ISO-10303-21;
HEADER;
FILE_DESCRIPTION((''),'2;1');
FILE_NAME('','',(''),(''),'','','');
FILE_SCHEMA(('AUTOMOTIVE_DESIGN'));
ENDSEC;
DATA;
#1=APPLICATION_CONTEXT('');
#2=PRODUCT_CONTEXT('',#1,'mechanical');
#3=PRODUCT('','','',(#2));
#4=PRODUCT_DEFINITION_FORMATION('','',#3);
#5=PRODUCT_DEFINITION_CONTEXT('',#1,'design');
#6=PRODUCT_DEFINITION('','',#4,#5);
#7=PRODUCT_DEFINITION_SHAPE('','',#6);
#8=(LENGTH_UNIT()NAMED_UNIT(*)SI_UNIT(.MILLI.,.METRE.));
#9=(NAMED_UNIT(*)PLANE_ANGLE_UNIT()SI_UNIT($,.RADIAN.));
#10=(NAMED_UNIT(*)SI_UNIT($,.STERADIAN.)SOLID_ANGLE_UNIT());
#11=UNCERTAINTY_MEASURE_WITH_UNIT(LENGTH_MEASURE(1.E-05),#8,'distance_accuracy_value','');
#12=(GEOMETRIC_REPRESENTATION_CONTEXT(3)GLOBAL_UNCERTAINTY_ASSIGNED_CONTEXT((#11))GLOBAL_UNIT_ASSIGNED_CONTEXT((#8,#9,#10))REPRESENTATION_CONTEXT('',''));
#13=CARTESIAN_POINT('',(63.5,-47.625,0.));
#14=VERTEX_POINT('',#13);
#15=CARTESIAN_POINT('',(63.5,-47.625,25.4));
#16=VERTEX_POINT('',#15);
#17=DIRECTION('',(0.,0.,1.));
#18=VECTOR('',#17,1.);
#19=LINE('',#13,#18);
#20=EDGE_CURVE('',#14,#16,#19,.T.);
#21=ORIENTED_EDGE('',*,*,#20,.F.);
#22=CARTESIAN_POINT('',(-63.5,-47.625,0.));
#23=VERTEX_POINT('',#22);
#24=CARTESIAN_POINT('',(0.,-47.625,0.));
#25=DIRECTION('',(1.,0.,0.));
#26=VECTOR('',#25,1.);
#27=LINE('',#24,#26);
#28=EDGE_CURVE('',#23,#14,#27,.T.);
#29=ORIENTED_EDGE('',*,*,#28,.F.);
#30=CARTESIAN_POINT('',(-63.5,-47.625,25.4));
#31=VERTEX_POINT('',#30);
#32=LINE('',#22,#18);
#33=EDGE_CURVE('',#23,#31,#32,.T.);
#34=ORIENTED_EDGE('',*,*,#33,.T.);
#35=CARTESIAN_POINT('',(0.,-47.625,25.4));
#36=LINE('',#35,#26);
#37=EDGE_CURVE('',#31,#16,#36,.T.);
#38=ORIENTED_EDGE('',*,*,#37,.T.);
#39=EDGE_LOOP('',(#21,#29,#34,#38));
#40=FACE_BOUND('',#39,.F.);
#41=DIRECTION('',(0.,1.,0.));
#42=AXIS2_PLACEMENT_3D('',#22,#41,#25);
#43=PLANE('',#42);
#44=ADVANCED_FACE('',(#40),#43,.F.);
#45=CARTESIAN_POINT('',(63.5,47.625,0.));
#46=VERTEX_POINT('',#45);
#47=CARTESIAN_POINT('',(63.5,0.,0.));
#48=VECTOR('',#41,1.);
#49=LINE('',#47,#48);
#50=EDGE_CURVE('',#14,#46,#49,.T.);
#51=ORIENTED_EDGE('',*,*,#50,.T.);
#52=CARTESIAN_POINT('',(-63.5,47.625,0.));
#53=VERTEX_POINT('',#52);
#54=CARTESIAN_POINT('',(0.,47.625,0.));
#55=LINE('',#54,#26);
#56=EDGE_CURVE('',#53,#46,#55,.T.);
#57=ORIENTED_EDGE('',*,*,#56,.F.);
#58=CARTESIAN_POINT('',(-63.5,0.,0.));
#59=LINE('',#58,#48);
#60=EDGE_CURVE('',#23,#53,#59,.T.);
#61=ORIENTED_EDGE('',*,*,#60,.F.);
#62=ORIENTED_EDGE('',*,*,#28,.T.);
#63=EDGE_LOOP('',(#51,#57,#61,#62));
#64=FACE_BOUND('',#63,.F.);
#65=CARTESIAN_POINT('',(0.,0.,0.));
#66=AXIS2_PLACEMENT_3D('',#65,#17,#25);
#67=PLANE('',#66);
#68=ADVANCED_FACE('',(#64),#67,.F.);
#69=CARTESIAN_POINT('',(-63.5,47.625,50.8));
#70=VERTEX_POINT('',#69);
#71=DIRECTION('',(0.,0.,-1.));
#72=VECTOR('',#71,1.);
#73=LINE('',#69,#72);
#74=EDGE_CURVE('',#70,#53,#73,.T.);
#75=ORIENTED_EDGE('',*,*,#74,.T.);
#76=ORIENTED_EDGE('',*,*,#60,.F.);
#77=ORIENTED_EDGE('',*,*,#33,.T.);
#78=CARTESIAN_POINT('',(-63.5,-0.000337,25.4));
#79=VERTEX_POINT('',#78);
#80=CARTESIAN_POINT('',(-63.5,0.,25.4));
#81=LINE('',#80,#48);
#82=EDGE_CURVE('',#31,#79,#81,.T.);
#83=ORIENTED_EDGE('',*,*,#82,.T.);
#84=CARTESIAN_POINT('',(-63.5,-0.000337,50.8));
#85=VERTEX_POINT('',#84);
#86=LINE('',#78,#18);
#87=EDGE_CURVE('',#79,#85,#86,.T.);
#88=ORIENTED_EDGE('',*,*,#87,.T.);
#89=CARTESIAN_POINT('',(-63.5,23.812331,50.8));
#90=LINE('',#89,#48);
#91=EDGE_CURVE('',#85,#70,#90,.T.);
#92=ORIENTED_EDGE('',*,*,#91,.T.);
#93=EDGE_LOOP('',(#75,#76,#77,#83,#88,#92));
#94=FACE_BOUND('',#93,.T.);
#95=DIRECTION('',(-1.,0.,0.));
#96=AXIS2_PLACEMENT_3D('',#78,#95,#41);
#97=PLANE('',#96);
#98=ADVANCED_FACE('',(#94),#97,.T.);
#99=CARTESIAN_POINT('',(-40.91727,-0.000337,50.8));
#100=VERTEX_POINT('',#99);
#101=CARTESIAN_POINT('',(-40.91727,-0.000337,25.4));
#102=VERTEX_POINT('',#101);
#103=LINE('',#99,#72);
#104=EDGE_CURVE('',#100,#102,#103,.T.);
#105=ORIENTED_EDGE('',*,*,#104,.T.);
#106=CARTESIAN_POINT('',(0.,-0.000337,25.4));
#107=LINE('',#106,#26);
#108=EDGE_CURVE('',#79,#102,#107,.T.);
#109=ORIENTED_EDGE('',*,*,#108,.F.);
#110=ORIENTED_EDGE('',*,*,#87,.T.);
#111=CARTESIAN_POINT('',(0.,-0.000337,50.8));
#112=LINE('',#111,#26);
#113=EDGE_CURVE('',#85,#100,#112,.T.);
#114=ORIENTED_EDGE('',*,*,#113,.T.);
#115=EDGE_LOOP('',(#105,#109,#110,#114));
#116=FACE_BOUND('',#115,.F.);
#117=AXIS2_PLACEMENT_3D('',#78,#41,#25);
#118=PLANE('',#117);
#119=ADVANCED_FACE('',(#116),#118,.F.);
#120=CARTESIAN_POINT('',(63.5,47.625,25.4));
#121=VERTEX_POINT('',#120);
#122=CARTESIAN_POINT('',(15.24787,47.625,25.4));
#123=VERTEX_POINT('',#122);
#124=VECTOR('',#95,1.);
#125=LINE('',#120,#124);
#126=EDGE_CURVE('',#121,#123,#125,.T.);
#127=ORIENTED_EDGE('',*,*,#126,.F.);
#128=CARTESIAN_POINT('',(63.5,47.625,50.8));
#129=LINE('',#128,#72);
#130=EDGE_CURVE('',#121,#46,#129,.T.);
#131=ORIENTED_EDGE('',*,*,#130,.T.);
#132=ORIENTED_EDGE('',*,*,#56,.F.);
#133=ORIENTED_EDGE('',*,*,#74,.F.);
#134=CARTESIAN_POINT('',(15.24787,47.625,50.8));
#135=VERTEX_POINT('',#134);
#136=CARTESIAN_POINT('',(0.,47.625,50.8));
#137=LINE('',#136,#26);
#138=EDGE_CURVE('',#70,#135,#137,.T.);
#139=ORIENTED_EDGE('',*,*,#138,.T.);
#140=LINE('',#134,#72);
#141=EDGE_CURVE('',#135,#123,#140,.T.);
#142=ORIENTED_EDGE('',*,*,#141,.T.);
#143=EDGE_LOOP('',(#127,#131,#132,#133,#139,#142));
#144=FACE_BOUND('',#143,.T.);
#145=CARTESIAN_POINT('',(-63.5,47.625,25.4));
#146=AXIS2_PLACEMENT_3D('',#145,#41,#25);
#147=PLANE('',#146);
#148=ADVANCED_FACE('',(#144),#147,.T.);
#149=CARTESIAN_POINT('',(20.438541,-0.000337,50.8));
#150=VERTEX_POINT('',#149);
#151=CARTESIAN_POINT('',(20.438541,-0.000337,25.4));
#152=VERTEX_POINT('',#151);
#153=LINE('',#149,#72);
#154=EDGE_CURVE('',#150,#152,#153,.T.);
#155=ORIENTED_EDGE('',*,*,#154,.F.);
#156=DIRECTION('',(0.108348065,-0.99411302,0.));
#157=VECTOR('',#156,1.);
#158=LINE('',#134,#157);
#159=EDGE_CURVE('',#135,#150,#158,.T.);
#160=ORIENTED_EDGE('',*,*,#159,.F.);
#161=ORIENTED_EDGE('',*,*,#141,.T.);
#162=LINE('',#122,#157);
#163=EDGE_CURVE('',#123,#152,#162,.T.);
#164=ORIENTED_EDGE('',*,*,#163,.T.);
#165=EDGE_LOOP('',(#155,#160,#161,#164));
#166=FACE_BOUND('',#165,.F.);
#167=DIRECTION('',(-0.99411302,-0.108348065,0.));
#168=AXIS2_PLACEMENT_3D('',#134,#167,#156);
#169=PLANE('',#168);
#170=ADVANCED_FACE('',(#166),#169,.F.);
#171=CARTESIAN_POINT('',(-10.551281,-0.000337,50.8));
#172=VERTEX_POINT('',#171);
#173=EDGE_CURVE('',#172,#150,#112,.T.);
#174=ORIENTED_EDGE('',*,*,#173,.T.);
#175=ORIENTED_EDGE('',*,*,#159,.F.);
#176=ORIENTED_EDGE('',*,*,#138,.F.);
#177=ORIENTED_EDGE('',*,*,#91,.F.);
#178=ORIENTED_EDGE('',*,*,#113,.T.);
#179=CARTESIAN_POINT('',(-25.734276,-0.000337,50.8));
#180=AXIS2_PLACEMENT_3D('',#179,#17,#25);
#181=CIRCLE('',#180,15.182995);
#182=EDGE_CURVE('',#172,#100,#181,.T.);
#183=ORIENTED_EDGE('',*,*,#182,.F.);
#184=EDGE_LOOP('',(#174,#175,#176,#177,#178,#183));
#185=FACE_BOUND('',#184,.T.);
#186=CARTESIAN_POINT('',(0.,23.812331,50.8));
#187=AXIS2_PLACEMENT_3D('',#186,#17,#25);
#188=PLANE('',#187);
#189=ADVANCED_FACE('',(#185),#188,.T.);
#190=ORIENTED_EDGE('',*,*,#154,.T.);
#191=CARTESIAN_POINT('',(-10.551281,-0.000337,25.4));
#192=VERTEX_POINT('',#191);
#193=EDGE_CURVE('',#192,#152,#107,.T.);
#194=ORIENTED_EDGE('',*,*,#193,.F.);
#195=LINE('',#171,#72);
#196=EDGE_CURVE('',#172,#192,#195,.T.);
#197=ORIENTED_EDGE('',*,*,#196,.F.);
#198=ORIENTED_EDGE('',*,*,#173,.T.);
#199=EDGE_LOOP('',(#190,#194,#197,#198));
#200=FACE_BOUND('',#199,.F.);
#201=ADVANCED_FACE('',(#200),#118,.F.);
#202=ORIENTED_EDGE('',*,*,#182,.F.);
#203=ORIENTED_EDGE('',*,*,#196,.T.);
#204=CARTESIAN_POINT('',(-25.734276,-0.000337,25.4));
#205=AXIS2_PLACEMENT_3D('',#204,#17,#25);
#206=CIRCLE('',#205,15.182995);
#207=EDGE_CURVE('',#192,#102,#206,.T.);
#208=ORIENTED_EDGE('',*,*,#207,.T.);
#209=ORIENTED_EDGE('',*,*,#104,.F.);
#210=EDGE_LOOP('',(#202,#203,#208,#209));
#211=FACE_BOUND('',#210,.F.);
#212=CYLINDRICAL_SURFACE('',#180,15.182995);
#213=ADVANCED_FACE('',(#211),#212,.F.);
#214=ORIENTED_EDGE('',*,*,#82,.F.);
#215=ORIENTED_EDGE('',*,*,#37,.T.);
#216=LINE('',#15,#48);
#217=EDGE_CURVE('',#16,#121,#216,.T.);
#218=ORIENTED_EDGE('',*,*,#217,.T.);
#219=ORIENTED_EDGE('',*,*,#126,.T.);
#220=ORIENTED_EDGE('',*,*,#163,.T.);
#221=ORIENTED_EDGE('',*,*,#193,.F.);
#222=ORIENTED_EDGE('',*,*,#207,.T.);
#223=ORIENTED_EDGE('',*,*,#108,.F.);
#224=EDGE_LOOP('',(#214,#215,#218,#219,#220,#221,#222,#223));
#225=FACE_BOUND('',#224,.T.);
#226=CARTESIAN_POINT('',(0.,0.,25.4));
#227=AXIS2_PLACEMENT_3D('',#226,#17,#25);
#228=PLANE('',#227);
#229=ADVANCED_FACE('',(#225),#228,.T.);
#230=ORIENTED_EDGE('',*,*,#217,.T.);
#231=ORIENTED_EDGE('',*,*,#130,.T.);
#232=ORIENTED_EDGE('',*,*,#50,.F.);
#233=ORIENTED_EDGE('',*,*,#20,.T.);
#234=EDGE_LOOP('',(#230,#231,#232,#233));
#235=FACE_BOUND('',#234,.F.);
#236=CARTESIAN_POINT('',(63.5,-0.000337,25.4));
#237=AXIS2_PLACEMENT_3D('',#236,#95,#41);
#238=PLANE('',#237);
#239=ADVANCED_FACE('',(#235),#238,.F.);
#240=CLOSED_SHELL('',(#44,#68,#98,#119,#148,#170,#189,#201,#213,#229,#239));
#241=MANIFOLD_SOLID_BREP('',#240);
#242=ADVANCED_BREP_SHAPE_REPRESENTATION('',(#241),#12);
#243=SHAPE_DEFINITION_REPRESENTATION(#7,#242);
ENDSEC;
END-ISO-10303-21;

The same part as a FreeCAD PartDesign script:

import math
import FreeCAD as App
import Part
import Sketcher
Q = App.Units.Quantity


def add_polygon(sketch, points):
    """Adds a closed chain of lines whose ends are joined by coincident constraints."""
    first, n = sketch.GeometryCount, len(points)
    for a, b in zip(points, points[1:] + points[:1]):
        sketch.addGeometry(Part.LineSegment(App.Vector(*a, 0), App.Vector(*b, 0)), False)
    for i in range(n):
        sketch.addConstraint(Sketcher.Constraint("Coincident", first + i, 2, first + (i + 1) % n, 1))

doc = App.newDocument("Part")
params = doc.addObject("Spreadsheet::Sheet", "Params")
for row, (alias, value) in enumerate([
    ("sketch1_width", "5 in"),
    ("sketch1_height", "3.75 in"),
    ("pad1_length", "1 in"),
    ("sketch2_width", "5 in"),
    ("pad2_length", "1 in"),
    ("pocket1_length", "1 in"),
], start=1):
    params.set(f"A{row}", alias)
    params.set(f"B{row}", "=" + value)
    params.setAlias(f"B{row}", alias)

body = doc.addObject("PartDesign::Body", "Body")

# Sketch on XY plane
sketch1 = body.newObject("Sketcher::SketchObject", "Sketch")
sketch1.AttachmentSupport = (doc.getObject("XY_Plane"), [""])
sketch1.MapMode = "FlatFace"
add_polygon(sketch1, [(-64, 48), (-64, -48), (64, -48), (64, 48)])  # lines 0-3
sketch1.addConstraint(Sketcher.Constraint("Vertical", 0))
sketch1.addConstraint(Sketcher.Constraint("Horizontal", 1))
sketch1.addConstraint(Sketcher.Constraint("Vertical", 2))
sketch1.addConstraint(Sketcher.Constraint("Horizontal", 3))
sketch1.addConstraint(Sketcher.Constraint("Symmetric", 0, 2, 2, 2, -1, 1))
sketch1.addConstraint(Sketcher.Constraint("DistanceX", 1, 1, 1, 2, Q("5 in")))
sketch1.addConstraint(Sketcher.Constraint("DistanceY", 0, 2, 0, 1, Q("3.75 in")))
sketch1.setExpression("Constraints[9]", "Params.sketch1_width")
sketch1.setExpression("Constraints[10]", "Params.sketch1_height")
pad1 = body.newObject("PartDesign::Pad", "Pad")
pad1.Profile = sketch1
pad1.setExpression("Length", "Params.pad1_length")

# Sketch on XY plane
sketch2 = body.newObject("Sketcher::SketchObject", "Sketch001")
sketch2.AttachmentSupport = (doc.getObject("XY_Plane"), [""])
sketch2.MapMode = "FlatFace"
sketch2.AttachmentOffset = App.Placement(App.Vector(0, 0, 1 * 25.4), App.Rotation())
add_polygon(sketch2, [(-64, 48), (-64, 0), (64, 0), (64, 48)])  # lines 0-3
sketch2.addConstraint(Sketcher.Constraint("Vertical", 0))
sketch2.addConstraint(Sketcher.Constraint("Horizontal", 1))
sketch2.addConstraint(Sketcher.Constraint("Vertical", 2))
sketch2.addConstraint(Sketcher.Constraint("Horizontal", 3))
sketch2.addConstraint(Sketcher.Constraint("DistanceX", 1, 1, 1, 2, Q("5 in")))
sketch2.addConstraint(Sketcher.Constraint("DistanceX", 0, 2, -1, 1, Q("2.5 in")))
sketch2.addConstraint(Sketcher.Constraint("DistanceY", -1, 1, 2, 2, Q("1.875 in")))
sketch2.addConstraint(Sketcher.Constraint("DistanceY", 0, 2, 0, 1, Q("47.625337 mm")))
sketch2.setExpression("Constraints[8]", "Params.sketch2_width")
pad2 = body.newObject("PartDesign::Pad", "Pad001")
pad2.Profile = sketch2
pad2.setExpression("Length", "Params.pad2_length")

# Sketch on XY plane
sketch3 = body.newObject("Sketcher::SketchObject", "Sketch002")
sketch3.AttachmentSupport = (doc.getObject("XY_Plane"), [""])
sketch3.MapMode = "FlatFace"
sketch3.AttachmentOffset = App.Placement(App.Vector(0, 0, 2 * 25.4), App.Rotation())
sketch3.addGeometry(Part.LineSegment(App.Vector(-41, 0, 0), App.Vector(-11, 0, 0)), False)  # 0
sketch3.addGeometry(Part.ArcOfCircle(Part.Circle(App.Vector(-26, 0, 0), App.Vector(0, 0, 1), 15), math.radians(0), math.radians(180)), False)  # 1
add_polygon(sketch3, [(64, 48), (15, 48), (20, 0), (64, 0)])  # lines 2-5
sketch3.addConstraint(Sketcher.Constraint("Coincident", 0, 1, 1, 2))
sketch3.addConstraint(Sketcher.Constraint("Coincident", 1, 1, 0, 2))
sketch3.addConstraint(Sketcher.Constraint("Horizontal", 0))
sketch3.addConstraint(Sketcher.Constraint("Horizontal", 2))
sketch3.addConstraint(Sketcher.Constraint("Horizontal", 4))
sketch3.addConstraint(Sketcher.Constraint("Vertical", 5))
sketch3.addConstraint(Sketcher.Constraint("Horizontal", 1, 3, 0, 1))
sketch3.addConstraint(Sketcher.Constraint("Horizontal", 1, 1, 3, 2))
sketch3.addConstraint(Sketcher.Constraint("DistanceX", -1, 1, 4, 2, Q("2.5 in")))
sketch3.addConstraint(Sketcher.Constraint("DistanceY", -1, 1, 2, 2, Q("1.875 in")))
sketch3.addConstraint(Sketcher.Constraint("Radius", 1, Q("15.182995 mm")))
sketch3.addConstraint(Sketcher.Constraint("DistanceX", 2, 2, 2, 1, Q("48.25213 mm")))
sketch3.addConstraint(Sketcher.Constraint("DistanceX", 4, 1, 4, 2, Q("43.061459 mm")))
sketch3.addConstraint(Sketcher.Constraint("DistanceY", 5, 1, 5, 2, Q("47.625337 mm")))
sketch3.addConstraint(Sketcher.Constraint("DistanceX", 0, 1, -1, 1, Q("40.91727 mm")))
pocket1 = body.newObject("PartDesign::Pocket", "Pocket")
pocket1.Profile = sketch3
pocket1.setExpression("Length", "Params.pocket1_length")

doc.recompute()
